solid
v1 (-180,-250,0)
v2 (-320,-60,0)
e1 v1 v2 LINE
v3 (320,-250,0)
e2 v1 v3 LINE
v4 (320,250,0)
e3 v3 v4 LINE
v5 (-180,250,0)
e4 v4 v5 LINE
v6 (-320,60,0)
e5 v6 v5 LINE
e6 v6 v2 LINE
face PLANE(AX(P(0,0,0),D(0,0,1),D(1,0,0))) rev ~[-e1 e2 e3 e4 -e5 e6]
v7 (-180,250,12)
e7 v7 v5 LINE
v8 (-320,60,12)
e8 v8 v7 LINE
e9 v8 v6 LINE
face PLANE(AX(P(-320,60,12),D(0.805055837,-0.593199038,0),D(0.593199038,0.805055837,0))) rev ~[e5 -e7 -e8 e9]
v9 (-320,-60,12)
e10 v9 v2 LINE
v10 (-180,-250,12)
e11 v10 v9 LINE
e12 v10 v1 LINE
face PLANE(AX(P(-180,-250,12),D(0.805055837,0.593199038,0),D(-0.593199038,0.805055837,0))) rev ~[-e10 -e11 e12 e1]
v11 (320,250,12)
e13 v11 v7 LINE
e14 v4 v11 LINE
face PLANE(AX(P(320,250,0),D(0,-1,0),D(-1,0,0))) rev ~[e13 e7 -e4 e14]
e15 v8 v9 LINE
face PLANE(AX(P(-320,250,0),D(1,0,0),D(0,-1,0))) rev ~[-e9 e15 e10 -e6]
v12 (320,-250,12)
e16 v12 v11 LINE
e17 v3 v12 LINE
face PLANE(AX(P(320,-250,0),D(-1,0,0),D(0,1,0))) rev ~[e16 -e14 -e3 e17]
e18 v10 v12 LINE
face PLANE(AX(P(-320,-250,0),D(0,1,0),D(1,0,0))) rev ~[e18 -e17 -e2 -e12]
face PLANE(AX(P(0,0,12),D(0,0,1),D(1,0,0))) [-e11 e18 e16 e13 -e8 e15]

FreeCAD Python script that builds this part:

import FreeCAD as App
import Part
import Sketcher
Q = App.Units.Quantity


def add_polygon(sketch, points):
    """Adds a closed chain of lines whose ends are joined by coincident constraints."""
    first, n = sketch.GeometryCount, len(points)
    for a, b in zip(points, points[1:] + points[:1]):
        sketch.addGeometry(Part.LineSegment(App.Vector(*a, 0), App.Vector(*b, 0)), False)
    for i in range(n):
        sketch.addConstraint(Sketcher.Constraint("Coincident", first + i, 2, first + (i + 1) % n, 1))

doc = App.newDocument("Part")
params = doc.addObject("Spreadsheet::Sheet", "Params")
for row, (alias, value) in enumerate([
    ("sketch1_width", "640 mm"),
    ("sketch1_height", "500 mm"),
    ("pad1_length", "12 mm"),
    ("sketch2_width", "140 mm"),
    ("sketch2_height", "190 mm"),
    ("pocket1_length", "25 mm"),
], start=1):
    params.set(f"A{row}", alias)
    params.set(f"B{row}", "=" + value)
    params.setAlias(f"B{row}", alias)

body = doc.addObject("PartDesign::Body", "Body")

# Sketch on XY plane
sketch1 = body.newObject("Sketcher::SketchObject", "Sketch")
sketch1.AttachmentSupport = (doc.getObject("XY_Plane"), [""])
sketch1.MapMode = "FlatFace"
add_polygon(sketch1, [(320, 250), (-320, 250), (-320, -250), (320, -250)])  # lines 0-3
sketch1.addConstraint([
    Sketcher.Constraint("Horizontal", 0),
    Sketcher.Constraint("Vertical", 1),
    Sketcher.Constraint("Horizontal", 2),
    Sketcher.Constraint("Vertical", 3),
    Sketcher.Constraint("Symmetric", 0, 2, 2, 2, -1, 1),
    Sketcher.Constraint("DistanceX", 0, 2, 0, 1, Q("640 mm")),
    Sketcher.Constraint("DistanceY", 1, 2, 1, 1, Q("500 mm")),
])
sketch1.setExpression("Constraints[9]", "Params.sketch1_width")
sketch1.setExpression("Constraints[10]", "Params.sketch1_height")
pad1 = body.newObject("PartDesign::Pad", "Pad")
pad1.Profile = sketch1
pad1.setExpression("Length", "Params.pad1_length")

# Sketch on XY plane
sketch2 = body.newObject("Sketcher::SketchObject", "Sketch001")
sketch2.AttachmentSupport = (doc.getObject("XY_Plane"), [""])
sketch2.MapMode = "FlatFace"
sketch2.AttachmentOffset = App.Placement(App.Vector(0, 0, 12), App.Rotation())
add_polygon(sketch2, [(-320, 60), (-180, 250), (-320, 250)])  # lines 0-2
add_polygon(sketch2, [(-320, -250), (-180, -250), (-320, -60)])  # lines 3-5
sketch2.addConstraint([
    Sketcher.Constraint("Horizontal", 1),
    Sketcher.Constraint("Vertical", 2),
    Sketcher.Constraint("Horizontal", 3),
    Sketcher.Constraint("Vertical", 5),
    Sketcher.Constraint("Symmetric", 0, 2, 3, 2, -1),
    Sketcher.Constraint("Symmetric", 2, 2, 4, 2, -1),
    Sketcher.Constraint("DistanceX", 1, 2, 1, 1, Q("140 mm")),
    Sketcher.Constraint("DistanceY", 2, 2, 2, 1, Q("190 mm")),
    Sketcher.Constraint("DistanceX", 0, 2, -1, 1, Q("180 mm")),
    Sketcher.Constraint("DistanceY", -1, 1, 0, 2, Q("250 mm")),
])
sketch2.setExpression("Constraints[12]", "Params.sketch2_width")
sketch2.setExpression("Constraints[13]", "Params.sketch2_height")
pocket1 = body.newObject("PartDesign::Pocket", "Pocket")
pocket1.Profile = sketch2
pocket1.setExpression("Length", "Params.pocket1_length")

doc.recompute()
